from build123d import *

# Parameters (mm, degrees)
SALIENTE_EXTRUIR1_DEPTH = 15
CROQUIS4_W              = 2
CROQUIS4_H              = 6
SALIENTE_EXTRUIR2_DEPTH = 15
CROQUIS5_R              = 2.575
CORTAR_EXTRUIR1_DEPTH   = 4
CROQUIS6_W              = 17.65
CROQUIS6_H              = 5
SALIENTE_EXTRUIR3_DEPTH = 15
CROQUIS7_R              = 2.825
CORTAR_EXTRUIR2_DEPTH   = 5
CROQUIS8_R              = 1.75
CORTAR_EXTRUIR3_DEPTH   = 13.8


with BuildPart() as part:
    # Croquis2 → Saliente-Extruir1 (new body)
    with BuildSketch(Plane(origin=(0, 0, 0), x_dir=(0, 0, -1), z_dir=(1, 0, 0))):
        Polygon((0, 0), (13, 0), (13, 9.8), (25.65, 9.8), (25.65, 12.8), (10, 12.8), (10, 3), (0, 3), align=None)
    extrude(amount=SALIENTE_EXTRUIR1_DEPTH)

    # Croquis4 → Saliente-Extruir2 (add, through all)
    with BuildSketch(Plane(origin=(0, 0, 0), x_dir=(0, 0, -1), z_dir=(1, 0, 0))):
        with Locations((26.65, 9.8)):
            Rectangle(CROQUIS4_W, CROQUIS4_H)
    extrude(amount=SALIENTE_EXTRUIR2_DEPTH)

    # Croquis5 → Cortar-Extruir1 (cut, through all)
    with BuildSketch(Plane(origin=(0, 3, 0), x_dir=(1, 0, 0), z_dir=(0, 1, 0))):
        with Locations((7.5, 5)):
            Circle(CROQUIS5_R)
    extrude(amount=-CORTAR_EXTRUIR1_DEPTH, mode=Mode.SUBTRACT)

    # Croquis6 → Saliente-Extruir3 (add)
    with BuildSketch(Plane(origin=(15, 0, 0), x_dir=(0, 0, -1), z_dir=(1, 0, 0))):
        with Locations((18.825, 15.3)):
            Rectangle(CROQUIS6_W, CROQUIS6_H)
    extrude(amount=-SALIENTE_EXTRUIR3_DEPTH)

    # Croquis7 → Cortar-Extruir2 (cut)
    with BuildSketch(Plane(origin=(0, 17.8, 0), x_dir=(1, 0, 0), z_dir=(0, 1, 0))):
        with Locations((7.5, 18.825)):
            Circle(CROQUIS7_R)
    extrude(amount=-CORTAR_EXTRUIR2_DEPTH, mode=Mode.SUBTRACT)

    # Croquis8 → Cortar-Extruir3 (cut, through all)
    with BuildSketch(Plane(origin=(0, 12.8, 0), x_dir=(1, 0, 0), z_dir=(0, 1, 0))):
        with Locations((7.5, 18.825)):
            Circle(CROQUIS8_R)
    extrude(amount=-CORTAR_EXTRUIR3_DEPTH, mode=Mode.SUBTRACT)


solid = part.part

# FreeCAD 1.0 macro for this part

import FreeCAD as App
import Part
import Sketcher
from FreeCAD import Vector
Q = App.Units.Quantity


def add_polygon(sketch, points):
    """Adds a closed chain of lines whose ends are joined by coincident constraints."""
    first, n = sketch.GeometryCount, len(points)
    for a, b in zip(points, points[1:] + points[:1]):
        sketch.addGeometry(Part.LineSegment(App.Vector(*a, 0), App.Vector(*b, 0)), False)
    for i in range(n):
        sketch.addConstraint(Sketcher.Constraint("Coincident", first + i, 2, first + (i + 1) % n, 1))

doc = App.newDocument("Part")
body = doc.addObject("PartDesign::Body", "Body")

# Sketch on YZ plane
sketch1 = doc.addObject("Sketcher::SketchObject", "Sketch")
body.addObject(sketch1)
sketch1.AttachmentSupport = (doc.YZ_Plane, [""])
sketch1.MapMode = "FlatFace"
add_polygon(sketch1, [(0, 0), (0, -13), (9.8, -13), (9.8, -25.6), (12.8, -25.6), (12.8, -10), (3, -10), (3, 0)])  # lines 0-7
sketch1.addConstraint(Sketcher.Constraint("Vertical", 0))
sketch1.addConstraint(Sketcher.Constraint("Horizontal", 1))
sketch1.addConstraint(Sketcher.Constraint("Vertical", 2))
sketch1.addConstraint(Sketcher.Constraint("Horizontal", 3))
sketch1.addConstraint(Sketcher.Constraint("Vertical", 4))
sketch1.addConstraint(Sketcher.Constraint("Horizontal", 5))
sketch1.addConstraint(Sketcher.Constraint("Vertical", 6))
sketch1.addConstraint(Sketcher.Constraint("Horizontal", 7))
sketch1.addConstraint(Sketcher.Constraint("Coincident", 7, 2, -1, 1))
sketch1.addConstraint(Sketcher.Constraint("Equal", 1, 5))
sketch1.addConstraint(Sketcher.Constraint("DistanceX", 3, 1, 3, 2, Q("3 mm")))
sketch1.addConstraint(Sketcher.Constraint("DistanceY", 0, 2, 0, 1, Q("13 mm")))
sketch1.addConstraint(Sketcher.Constraint("DistanceY", 6, 1, 6, 2, Q("10 mm")))
sketch1.addConstraint(Sketcher.Constraint("DistanceX", 1, 1, 1, 2, Q("9.8 mm")))
sketch1.addConstraint(Sketcher.Constraint("DistanceY", 2, 2, 2, 1, Q("12.65 mm")))
pad1 = doc.addObject("PartDesign::Pad", "Pad")
body.addObject(pad1)
pad1.Profile = sketch1
pad1.Length = 15

# Sketch on YZ plane
sketch2 = doc.addObject("Sketcher::SketchObject", "Sketch001")
body.addObject(sketch2)
sketch2.AttachmentSupport = (doc.YZ_Plane, [""])
sketch2.MapMode = "FlatFace"
add_polygon(sketch2, [(12.8, -25.6), (6.8, -25.6), (6.8, -27.6), (12.8, -27.6)])  # lines 0-3
sketch2.addConstraint(Sketcher.Constraint("Horizontal", 0))
sketch2.addConstraint(Sketcher.Constraint("Vertical", 1))
sketch2.addConstraint(Sketcher.Constraint("Horizontal", 2))
sketch2.addConstraint(Sketcher.Constraint("Vertical", 3))
sketch2.addConstraint(Sketcher.Constraint("DistanceX", 0, 2, 0, 1, Q("6 mm")))
sketch2.addConstraint(Sketcher.Constraint("DistanceY", 1, 2, 1, 1, Q("2 mm")))
sketch2.addConstraint(Sketcher.Constraint("DistanceX", -1, 1, 0, 2, Q("6.8 mm")))
sketch2.addConstraint(Sketcher.Constraint("DistanceY", 0, 2, -1, 1, Q("25.65 mm")))
pad2 = doc.addObject("PartDesign::Pad", "Pad001")
body.addObject(pad2)
pad2.Profile = sketch2
pad2.Length = 15

# Sketch on XZ plane
sketch3 = doc.addObject("Sketcher::SketchObject", "Sketch002")
body.addObject(sketch3)
sketch3.AttachmentSupport = (doc.XZ_Plane, [""])
sketch3.MapMode = "FlatFace"
sketch3.AttachmentOffset = App.Placement(Vector(0, 0, -3), App.Rotation())
sketch3.addGeometry(Part.Circle(Vector(7.5, -5, 0), Vector(0, 0, 1), 2.6), False)
sketch3.addConstraint(Sketcher.Constraint("Diameter", 0, Q("5.15 mm")))
sketch3.addConstraint(Sketcher.Constraint("DistanceY", 0, 3, -1, 1, Q("5 mm")))
sketch3.addConstraint(Sketcher.Constraint("DistanceX", -1, 1, 0, 3, Q("7.5 mm")))
pocket1 = doc.addObject("PartDesign::Pocket", "Pocket")
body.addObject(pocket1)
pocket1.Profile = sketch3
pocket1.Type = "ThroughAll"
pocket1.Reversed = True

# Sketch on YZ plane
sketch4 = doc.addObject("Sketcher::SketchObject", "Sketch003")
body.addObject(sketch4)
sketch4.AttachmentSupport = (doc.YZ_Plane, [""])
sketch4.MapMode = "FlatFace"
sketch4.AttachmentOffset = App.Placement(Vector(0, 0, 15), App.Rotation())
add_polygon(sketch4, [(18, -10), (13, -10), (13, -28), (18, -28)])  # lines 0-3
sketch4.addConstraint(Sketcher.Constraint("Horizontal", 0))
sketch4.addConstraint(Sketcher.Constraint("Vertical", 1))
sketch4.addConstraint(Sketcher.Constraint("Horizontal", 2))
sketch4.addConstraint(Sketcher.Constraint("Vertical", 3))
sketch4.addConstraint(Sketcher.Constraint("DistanceX", 0, 2, 0, 1, Q("5 mm")))
sketch4.addConstraint(Sketcher.Constraint("DistanceY", 0, 2, -1, 1, Q("10 mm")))
sketch4.addConstraint(Sketcher.Constraint("DistanceY", 1, 2, 1, 1, Q("17.65 mm")))
sketch4.addConstraint(Sketcher.Constraint("DistanceX", -1, 1, 0, 2, Q("12.8 mm")))
pad3 = doc.addObject("PartDesign::Pad", "Pad002")
body.addObject(pad3)
pad3.Profile = sketch4
pad3.Length = 15
pad3.Reversed = True

# Sketch on XZ plane
sketch5 = doc.addObject("Sketcher::SketchObject", "Sketch004")
body.addObject(sketch5)
sketch5.AttachmentSupport = (doc.XZ_Plane, [""])
sketch5.MapMode = "FlatFace"
sketch5.AttachmentOffset = App.Placement(Vector(0, 0, -17.8), App.Rotation())
sketch5.addGeometry(Part.Circle(Vector(7.5, -18.8, 0), Vector(0, 0, 1), 2.8), False)
sketch5.addConstraint(Sketcher.Constraint("Diameter", 0, Q("5.65 mm")))
sketch5.addConstraint(Sketcher.Constraint("DistanceX", -1, 1, 0, 3, Q("7.5 mm")))
sketch5.addConstraint(Sketcher.Constraint("DistanceY", 0, 3, -1, 1, Q("18.825 mm")))
pocket2 = doc.addObject("PartDesign::Pocket", "Pocket001")
body.addObject(pocket2)
pocket2.Profile = sketch5
pocket2.Length = 5
pocket2.Reversed = True

# Sketch on XZ plane
sketch6 = doc.addObject("Sketcher::SketchObject", "Sketch005")
body.addObject(sketch6)
sketch6.AttachmentSupport = (doc.XZ_Plane, [""])
sketch6.MapMode = "FlatFace"
sketch6.AttachmentOffset = App.Placement(Vector(0, 0, -12.8), App.Rotation())
sketch6.addGeometry(Part.Circle(Vector(7.5, -18.8, 0), Vector(0, 0, 1), 1.8), False)
sketch6.addConstraint(Sketcher.Constraint("Diameter", 0, Q("3.5 mm")))
sketch6.addConstraint(Sketcher.Constraint("DistanceX", -1, 1, 0, 3, Q("7.5 mm")))
sketch6.addConstraint(Sketcher.Constraint("DistanceY", 0, 3, -1, 1, Q("18.825 mm")))
pocket3 = doc.addObject("PartDesign::Pocket", "Pocket002")
body.addObject(pocket3)
pocket3.Profile = sketch6
pocket3.Type = "ThroughAll"
pocket3.Reversed = True

doc.recompute()
